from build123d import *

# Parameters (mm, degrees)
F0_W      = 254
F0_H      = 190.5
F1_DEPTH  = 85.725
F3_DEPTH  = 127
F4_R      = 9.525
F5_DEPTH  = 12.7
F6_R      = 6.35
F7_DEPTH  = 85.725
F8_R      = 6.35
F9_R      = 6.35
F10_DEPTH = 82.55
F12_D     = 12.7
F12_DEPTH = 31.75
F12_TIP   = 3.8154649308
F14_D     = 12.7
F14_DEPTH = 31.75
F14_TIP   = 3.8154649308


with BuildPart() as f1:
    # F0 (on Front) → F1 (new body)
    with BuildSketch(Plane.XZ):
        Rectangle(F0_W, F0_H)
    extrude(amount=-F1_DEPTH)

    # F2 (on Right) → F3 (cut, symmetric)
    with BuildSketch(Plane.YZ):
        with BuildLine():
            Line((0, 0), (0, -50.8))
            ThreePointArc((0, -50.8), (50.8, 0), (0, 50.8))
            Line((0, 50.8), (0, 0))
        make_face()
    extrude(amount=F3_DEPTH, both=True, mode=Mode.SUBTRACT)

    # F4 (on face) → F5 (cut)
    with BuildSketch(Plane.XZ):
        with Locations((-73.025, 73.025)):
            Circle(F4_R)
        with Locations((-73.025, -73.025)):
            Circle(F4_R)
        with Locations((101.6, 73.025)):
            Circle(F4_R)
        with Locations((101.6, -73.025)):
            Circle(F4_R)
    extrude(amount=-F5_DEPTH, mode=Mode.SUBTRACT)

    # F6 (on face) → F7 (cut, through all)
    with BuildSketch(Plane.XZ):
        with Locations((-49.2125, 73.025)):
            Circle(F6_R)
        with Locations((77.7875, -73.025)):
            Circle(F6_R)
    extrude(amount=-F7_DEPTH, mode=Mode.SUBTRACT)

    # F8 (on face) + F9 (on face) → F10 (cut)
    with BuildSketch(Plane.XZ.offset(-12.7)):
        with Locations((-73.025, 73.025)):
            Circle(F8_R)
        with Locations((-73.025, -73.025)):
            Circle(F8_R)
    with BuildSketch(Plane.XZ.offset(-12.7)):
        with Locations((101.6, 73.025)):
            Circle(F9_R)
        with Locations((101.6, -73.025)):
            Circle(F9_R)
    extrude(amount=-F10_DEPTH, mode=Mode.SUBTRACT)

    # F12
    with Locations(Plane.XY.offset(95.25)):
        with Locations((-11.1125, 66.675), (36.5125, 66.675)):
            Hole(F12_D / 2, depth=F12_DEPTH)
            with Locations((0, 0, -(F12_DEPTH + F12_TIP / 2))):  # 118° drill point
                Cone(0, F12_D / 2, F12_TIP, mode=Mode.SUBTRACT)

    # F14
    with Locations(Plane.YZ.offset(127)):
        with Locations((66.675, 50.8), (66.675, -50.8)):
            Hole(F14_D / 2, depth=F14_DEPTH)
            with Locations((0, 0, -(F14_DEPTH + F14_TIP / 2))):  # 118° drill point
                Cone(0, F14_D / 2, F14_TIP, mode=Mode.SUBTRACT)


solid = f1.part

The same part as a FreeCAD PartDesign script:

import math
import FreeCAD as App
import Part
import Sketcher

V = App.Vector
Q = App.Units.Quantity


def add_polygon(sketch, points):
    """Adds a closed chain of lines whose ends are joined by coincident constraints."""
    first, n = sketch.GeometryCount, len(points)
    for a, b in zip(points, points[1:] + points[:1]):
        sketch.addGeometry(Part.LineSegment(App.Vector(*a, 0), App.Vector(*b, 0)), False)
    for i in range(n):
        sketch.addConstraint(Sketcher.Constraint("Coincident", first + i, 2, first + (i + 1) % n, 1))

doc = App.newDocument("Part")
body = doc.addObject("PartDesign::Body", "Body")

sketch1 = body.newObject("Sketcher::SketchObject", "Sketch")
sketch1.AttachmentSupport = (doc.getObject("XZ_Plane"), [""])
sketch1.MapMode = "FlatFace"
add_polygon(sketch1, [(-127, 95), (-127, -95), (127, -95), (127, 95)])
sketch1.addConstraint([
    Sketcher.Constraint("Vertical", 0),
    Sketcher.Constraint("Horizontal", 1),
    Sketcher.Constraint("Vertical", 2),
    Sketcher.Constraint("Horizontal", 3),
    Sketcher.Constraint("Symmetric", 0, 2, 2, 2, -1, 1),
    Sketcher.Constraint("DistanceX", 1, 1, 1, 2, Q("10 in")),
    Sketcher.Constraint("DistanceY", 0, 2, 0, 1, Q("7.5 in")),
])
pad1 = body.newObject("PartDesign::Pad", "Pad")
pad1.Profile = sketch1
pad1.Length = Q("3.375 in")
pad1.Reversed = True

sketch2 = body.newObject("Sketcher::SketchObject", "Sketch001")
sketch2.AttachmentSupport = (doc.getObject("YZ_Plane"), [""])
sketch2.MapMode = "FlatFace"
sketch2.addGeometry([
    Part.ArcOfCircle(Part.Circle(V(0, 0, 0), V(0, 0, 1), 51), math.radians(-90), math.radians(90)),
    Part.LineSegment(V(0, 51, 0), V(0, -51, 0)),
], False)
sketch2.addConstraint([
    Sketcher.Constraint("Coincident", 0, 1, 1, 2),
    Sketcher.Constraint("Coincident", 1, 1, 0, 2),
    Sketcher.Constraint("Vertical", 1),
    Sketcher.Constraint("Coincident", 0, 3, -1, 1),
    Sketcher.Constraint("PointOnObject", 0, 1, -2),
    Sketcher.Constraint("Radius", 0, Q("2 in")),
])
pocket1 = body.newObject("PartDesign::Pocket", "Pocket")
pocket1.Profile = sketch2
pocket1.Length = Q("10 in")
pocket1.Midplane = True

sketch3 = body.newObject("Sketcher::SketchObject", "Sketch002")
sketch3.AttachmentSupport = (doc.getObject("XZ_Plane"), [""])
sketch3.MapMode = "FlatFace"
sketch3.addGeometry([
    Part.Circle(V(-73, 73, 0), V(0, 0, 1), 10),
    Part.Circle(V(-73, -73, 0), V(0, 0, 1), 10),
    Part.Circle(V(102, 73, 0), V(0, 0, 1), 10),
    Part.Circle(V(102, -73, 0), V(0, 0, 1), 10),
], False)
sketch3.addConstraint([
    Sketcher.Constraint("Equal", 0, 1),
    Sketcher.Constraint("Equal", 1, 2),
    Sketcher.Constraint("Equal", 2, 3),
    Sketcher.Constraint("Symmetric", 0, 3, 1, 3, -1),
    Sketcher.Constraint("Symmetric", 2, 3, 3, 3, -1),
    Sketcher.Constraint("Horizontal", 0, 3, 2, 3),
    Sketcher.Constraint("Diameter", 0, Q("0.75 in")),
    Sketcher.Constraint("DistanceX", -1, 1, 2, 3, Q("4 in")),
    Sketcher.Constraint("DistanceY", 1, 3, 0, 3, Q("5.75 in")),
    Sketcher.Constraint("DistanceX", 0, 3, -1, 1, Q("2.875 in")),
])
pocket2 = body.newObject("PartDesign::Pocket", "Pocket001")
pocket2.Profile = sketch3
pocket2.Length = Q("0.5 in")

sketch4 = body.newObject("Sketcher::SketchObject", "Sketch003")
sketch4.AttachmentSupport = (doc.getObject("XZ_Plane"), [""])
sketch4.MapMode = "FlatFace"
sketch4.addGeometry([
    Part.Circle(V(-49, 73, 0), V(0, 0, 1), 6),
    Part.Circle(V(78, -73, 0), V(0, 0, 1), 6),
], False)
sketch4.addConstraint([
    Sketcher.Constraint("Equal", 0, 1),
    Sketcher.Constraint("Diameter", 0, Q("0.5 in")),
    Sketcher.Constraint("DistanceX", 0, 3, 1, 3, Q("5 in")),
    Sketcher.Constraint("DistanceY", 1, 3, 0, 3, Q("5.75 in")),
    Sketcher.Constraint("DistanceX", 0, 3, -1, 1, Q("1.9375 in")),
    Sketcher.Constraint("DistanceY", -1, 1, 0, 3, Q("2.875 in")),
])
pocket3 = body.newObject("PartDesign::Pocket", "Pocket002")
pocket3.Profile = sketch4
pocket3.Type = "ThroughAll"

sketch5 = body.newObject("Sketcher::SketchObject", "Sketch004")
sketch5.AttachmentSupport = (doc.getObject("XZ_Plane"), [""])
sketch5.MapMode = "FlatFace"
sketch5.AttachmentOffset = App.Placement(V(0, 0, -0.5 * 25.4), App.Rotation())
sketch5.addGeometry([
    Part.Circle(V(-73, 73, 0), V(0, 0, 1), 6),
    Part.Circle(V(-73, -73, 0), V(0, 0, 1), 6),
    Part.Circle(V(102, 73, 0), V(0, 0, 1), 6),
    Part.Circle(V(102, -73, 0), V(0, 0, 1), 6),
], False)
sketch5.addConstraint([
    Sketcher.Constraint("Equal", 0, 1),
    Sketcher.Constraint("Equal", 1, 2),
    Sketcher.Constraint("Equal", 2, 3),
    Sketcher.Constraint("Symmetric", 0, 3, 1, 3, -1),
    Sketcher.Constraint("Symmetric", 2, 3, 3, 3, -1),
    Sketcher.Constraint("Horizontal", 0, 3, 2, 3),
    Sketcher.Constraint("Diameter", 0, Q("0.5 in")),
    Sketcher.Constraint("DistanceX", -1, 1, 2, 3, Q("4 in")),
    Sketcher.Constraint("DistanceY", 1, 3, 0, 3, Q("5.75 in")),
    Sketcher.Constraint("DistanceX", 0, 3, -1, 1, Q("2.875 in")),
])
pocket4 = body.newObject("PartDesign::Pocket", "Pocket003")
pocket4.Profile = sketch5
pocket4.Length = Q("3.25 in")

sketch6 = body.newObject("Sketcher::SketchObject", "Sketch005")
sketch6.AttachmentSupport = (doc.getObject("XY_Plane"), [""])
sketch6.MapMode = "FlatFace"
sketch6.AttachmentOffset = App.Placement(V(0, 0, 3.75 * 25.4), App.Rotation())
sketch6.addGeometry([
    Part.Circle(V(-11, 67, 0), V(0, 0, 1), 6),
    Part.Circle(V(37, 67, 0), V(0, 0, 1), 6),
], False)
sketch6.addConstraint([
    Sketcher.Constraint("Equal", 0, 1),
    Sketcher.Constraint("Horizontal", 0, 3, 1, 3),
    Sketcher.Constraint("Diameter", 0, Q("0.5 in")),
    Sketcher.Constraint("DistanceX", 0, 3, -1, 1, Q("0.4375 in")),
    Sketcher.Constraint("DistanceY", -1, 1, 0, 3, Q("2.625 in")),
    Sketcher.Constraint("DistanceX", -1, 1, 1, 3, Q("1.4375 in")),
])
doc.recompute()
hole = body.newObject("PartDesign::Hole", "Hole")
hole.Profile = sketch6
hole.ThreadType = "None"
hole.Diameter = Q("0.5 in")
hole.DepthType = "Dimension"
hole.Depth = Q("1.25 in")
hole.DrillPoint = "Angled"
hole.DrillPointAngle = 118

sketch7 = body.newObject("Sketcher::SketchObject", "Sketch006")
sketch7.AttachmentSupport = (doc.getObject("YZ_Plane"), [""])
sketch7.MapMode = "FlatFace"
sketch7.AttachmentOffset = App.Placement(V(0, 0, 5 * 25.4), App.Rotation())
sketch7.addGeometry([
    Part.Circle(V(67, 51, 0), V(0, 0, 1), 6),
    Part.Circle(V(67, -51, 0), V(0, 0, 1), 6),
], False)
sketch7.addConstraint([
    Sketcher.Constraint("Equal", 0, 1),
    Sketcher.Constraint("Symmetric", 0, 3, 1, 3, -1),
    Sketcher.Constraint("Diameter", 0, Q("0.5 in")),
    Sketcher.Constraint("DistanceY", -1, 1, 0, 3, Q("2 in")),
    Sketcher.Constraint("DistanceX", -1, 1, 0, 3, Q("2.625 in")),
])
doc.recompute()
hole2 = body.newObject("PartDesign::Hole", "Hole001")
hole2.Profile = sketch7
hole2.ThreadType = "None"
hole2.Diameter = Q("0.5 in")
hole2.DepthType = "Dimension"
hole2.Depth = Q("1.25 in")
hole2.DrillPoint = "Angled"
hole2.DrillPointAngle = 118

doc.recompute()
